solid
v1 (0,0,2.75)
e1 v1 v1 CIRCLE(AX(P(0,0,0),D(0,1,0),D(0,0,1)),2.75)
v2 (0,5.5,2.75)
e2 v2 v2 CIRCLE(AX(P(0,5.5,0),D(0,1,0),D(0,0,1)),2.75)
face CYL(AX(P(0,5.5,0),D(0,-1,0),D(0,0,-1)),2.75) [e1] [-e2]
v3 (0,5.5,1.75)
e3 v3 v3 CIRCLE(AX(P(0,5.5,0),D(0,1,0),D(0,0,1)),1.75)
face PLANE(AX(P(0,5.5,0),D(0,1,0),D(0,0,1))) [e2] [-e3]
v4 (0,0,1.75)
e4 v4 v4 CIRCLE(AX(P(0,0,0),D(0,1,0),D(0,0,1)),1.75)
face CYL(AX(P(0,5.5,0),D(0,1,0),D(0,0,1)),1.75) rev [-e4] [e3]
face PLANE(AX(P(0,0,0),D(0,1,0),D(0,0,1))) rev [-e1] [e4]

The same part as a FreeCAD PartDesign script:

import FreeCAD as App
import Part
import Sketcher
from FreeCAD import Vector

doc = App.newDocument("Part")
body = doc.addObject("PartDesign::Body", "Body")

sketch1 = body.newObject("Sketcher::SketchObject", "Sketch")
sketch1.AttachmentSupport = (doc.getObject("XZ_Plane"), [""])
sketch1.MapMode = "FlatFace"
sketch1.addGeometry(Part.Circle(Vector(0, 0, 0), Vector(0, 0, 1), 2.8), False)
sketch1.addConstraint([
    Sketcher.Constraint("Coincident", 0, 3, -1, 1),
    Sketcher.Constraint("Diameter", 0, 5.5),
])
pad1 = body.newObject("PartDesign::Pad", "Pad")
pad1.Profile = sketch1
pad1.Length = 5.5
pad1.Reversed = True

sketch2 = body.newObject("Sketcher::SketchObject", "Sketch001")
sketch2.AttachmentSupport = (doc.getObject("XZ_Plane"), [""])
sketch2.MapMode = "FlatFace"
sketch2.addGeometry(Part.Circle(Vector(0, 0, 0), Vector(0, 0, 1), 1.8), False)
sketch2.addConstraint([
    Sketcher.Constraint("Coincident", 0, 3, -1, 1),
    Sketcher.Constraint("Diameter", 0, 3.5),
])
doc.recompute()
hole = body.newObject("PartDesign::Hole", "Hole")
hole.Profile = sketch2
hole.ThreadType = "None"
hole.Diameter = 3.5
hole.DepthType = "ThroughAll"

sketch3 = body.newObject("Sketcher::SketchObject", "Sketch002")
sketch3.AttachmentSupport = (doc.getObject("XZ_Plane"), [""])
sketch3.MapMode = "FlatFace"
sketch3.AttachmentOffset = App.Placement(Vector(0, 0, -5.5), App.Rotation())
sketch3.addGeometry(Part.Circle(Vector(0, 0, 0), Vector(0, 0, 1), 1.8), False)
sketch3.addConstraint([
    Sketcher.Constraint("Coincident", 0, 3, -1, 1),
    Sketcher.Constraint("Diameter", 0, 3.5),
])
doc.recompute()
hole2 = body.newObject("PartDesign::Hole", "Hole001")
hole2.Profile = sketch3
hole2.ThreadType = "None"
hole2.Diameter = 3.5
hole2.DepthType = "ThroughAll"
hole2.Reversed = True

doc.recompute()
